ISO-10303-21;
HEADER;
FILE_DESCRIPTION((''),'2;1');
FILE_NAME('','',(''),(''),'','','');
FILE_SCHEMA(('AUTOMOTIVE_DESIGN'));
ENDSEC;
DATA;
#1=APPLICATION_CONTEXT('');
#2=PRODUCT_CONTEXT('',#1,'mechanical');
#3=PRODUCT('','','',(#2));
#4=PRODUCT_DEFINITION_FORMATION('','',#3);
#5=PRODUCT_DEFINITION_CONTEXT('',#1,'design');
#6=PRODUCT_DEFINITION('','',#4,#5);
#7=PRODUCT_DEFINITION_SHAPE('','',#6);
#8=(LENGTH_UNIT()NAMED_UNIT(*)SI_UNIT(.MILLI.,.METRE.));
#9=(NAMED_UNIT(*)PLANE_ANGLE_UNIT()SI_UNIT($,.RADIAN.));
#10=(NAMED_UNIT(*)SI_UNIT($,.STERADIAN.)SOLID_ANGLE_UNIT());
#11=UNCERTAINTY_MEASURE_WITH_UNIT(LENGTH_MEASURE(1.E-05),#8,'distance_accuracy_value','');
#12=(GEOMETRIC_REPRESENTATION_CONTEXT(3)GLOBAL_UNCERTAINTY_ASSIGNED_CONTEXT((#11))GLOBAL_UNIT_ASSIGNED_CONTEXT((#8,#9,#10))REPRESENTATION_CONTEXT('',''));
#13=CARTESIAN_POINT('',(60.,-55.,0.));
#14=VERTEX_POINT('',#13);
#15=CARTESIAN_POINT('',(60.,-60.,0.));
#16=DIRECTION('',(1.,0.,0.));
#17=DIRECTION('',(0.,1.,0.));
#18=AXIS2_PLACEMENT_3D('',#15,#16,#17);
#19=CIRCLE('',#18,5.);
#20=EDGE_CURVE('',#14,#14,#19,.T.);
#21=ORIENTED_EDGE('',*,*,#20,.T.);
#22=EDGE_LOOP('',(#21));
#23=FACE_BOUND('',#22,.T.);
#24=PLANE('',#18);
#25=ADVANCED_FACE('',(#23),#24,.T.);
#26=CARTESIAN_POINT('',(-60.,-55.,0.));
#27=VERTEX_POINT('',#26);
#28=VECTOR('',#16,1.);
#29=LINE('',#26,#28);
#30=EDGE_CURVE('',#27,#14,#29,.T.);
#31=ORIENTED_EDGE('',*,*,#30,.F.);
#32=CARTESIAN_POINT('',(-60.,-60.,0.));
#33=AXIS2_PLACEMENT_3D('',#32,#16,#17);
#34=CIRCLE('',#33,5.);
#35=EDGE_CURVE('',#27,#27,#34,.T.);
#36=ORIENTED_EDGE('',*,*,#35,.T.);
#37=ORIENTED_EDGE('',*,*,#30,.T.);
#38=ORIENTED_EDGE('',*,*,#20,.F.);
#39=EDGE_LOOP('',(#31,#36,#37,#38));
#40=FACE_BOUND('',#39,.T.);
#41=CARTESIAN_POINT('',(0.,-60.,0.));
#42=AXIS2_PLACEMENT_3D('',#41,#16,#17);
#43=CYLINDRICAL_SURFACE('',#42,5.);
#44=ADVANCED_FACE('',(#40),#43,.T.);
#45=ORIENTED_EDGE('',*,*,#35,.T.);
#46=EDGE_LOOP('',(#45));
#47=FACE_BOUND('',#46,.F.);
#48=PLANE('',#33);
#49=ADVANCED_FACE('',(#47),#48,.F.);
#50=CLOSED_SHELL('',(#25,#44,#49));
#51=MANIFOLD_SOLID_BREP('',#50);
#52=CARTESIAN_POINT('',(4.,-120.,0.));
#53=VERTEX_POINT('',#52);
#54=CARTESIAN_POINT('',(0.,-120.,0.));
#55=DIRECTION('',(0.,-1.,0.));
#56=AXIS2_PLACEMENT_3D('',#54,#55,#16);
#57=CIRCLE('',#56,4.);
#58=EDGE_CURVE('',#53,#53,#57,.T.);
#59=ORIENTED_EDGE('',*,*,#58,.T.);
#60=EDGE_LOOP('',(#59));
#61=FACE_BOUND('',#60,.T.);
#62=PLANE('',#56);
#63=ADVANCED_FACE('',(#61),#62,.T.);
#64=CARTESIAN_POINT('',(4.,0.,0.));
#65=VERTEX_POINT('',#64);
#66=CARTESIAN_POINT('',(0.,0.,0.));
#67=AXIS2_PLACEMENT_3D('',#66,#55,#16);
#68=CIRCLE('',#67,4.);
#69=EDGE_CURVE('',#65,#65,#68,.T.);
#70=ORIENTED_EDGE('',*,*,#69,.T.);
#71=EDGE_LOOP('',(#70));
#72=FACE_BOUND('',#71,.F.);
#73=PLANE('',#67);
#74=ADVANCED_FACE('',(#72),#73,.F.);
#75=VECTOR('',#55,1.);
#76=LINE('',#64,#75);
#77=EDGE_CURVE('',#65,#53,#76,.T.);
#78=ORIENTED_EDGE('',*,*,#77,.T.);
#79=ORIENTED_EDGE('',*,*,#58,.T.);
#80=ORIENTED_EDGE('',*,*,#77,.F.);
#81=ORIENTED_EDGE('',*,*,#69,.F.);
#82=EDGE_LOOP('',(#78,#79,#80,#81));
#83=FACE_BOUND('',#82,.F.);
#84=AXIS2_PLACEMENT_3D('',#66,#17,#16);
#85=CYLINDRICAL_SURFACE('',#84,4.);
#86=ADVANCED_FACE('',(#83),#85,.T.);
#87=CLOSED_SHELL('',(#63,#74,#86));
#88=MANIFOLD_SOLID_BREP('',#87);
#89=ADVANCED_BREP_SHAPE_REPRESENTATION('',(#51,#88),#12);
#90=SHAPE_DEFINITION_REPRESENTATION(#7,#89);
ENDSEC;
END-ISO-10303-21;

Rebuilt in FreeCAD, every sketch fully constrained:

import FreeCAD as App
import Part
import Sketcher
from FreeCAD import Vector

doc = App.newDocument("Part")
body = doc.addObject("PartDesign::Body", "Body")

sketch1 = doc.addObject("Sketcher::SketchObject", "Sketch")
body.addObject(sketch1)
sketch1.AttachmentSupport = (doc.XZ_Plane, [""])
sketch1.MapMode = "FlatFace"
sketch1.addGeometry(Part.Circle(Vector(0, 0, 0), Vector(0, 0, 1), 4), False)
sketch1.addConstraint([
    Sketcher.Constraint("Coincident", 0, 3, -1, 1),
    Sketcher.Constraint("Diameter", 0, 8.0),
])
pad1 = doc.addObject("PartDesign::Pad", "Pad")
body.addObject(pad1)
pad1.Profile = sketch1
pad1.Length = 120
body2 = doc.addObject("PartDesign::Body", "Body001")

sketch2 = doc.addObject("Sketcher::SketchObject", "Sketch001")
body2.addObject(sketch2)
sketch2.AttachmentSupport = (doc.getObject("YZ_Plane001"), [""])
sketch2.MapMode = "FlatFace"
sketch2.addGeometry(Part.Circle(Vector(-60, 0, 0), Vector(0, 0, 1), 5), False)
sketch2.addConstraint([
    Sketcher.Constraint("PointOnObject", 0, 3, -1),
    Sketcher.Constraint("Diameter", 0, 10.0),
    Sketcher.Constraint("DistanceX", 0, 3, -1, 1, 60.0),
])
pad2 = doc.addObject("PartDesign::Pad", "Pad001")
body2.addObject(pad2)
pad2.Profile = sketch2
pad2.Type = "TwoLengths"
pad2.Length = 60
pad2.Length2 = 60

doc.recompute()
